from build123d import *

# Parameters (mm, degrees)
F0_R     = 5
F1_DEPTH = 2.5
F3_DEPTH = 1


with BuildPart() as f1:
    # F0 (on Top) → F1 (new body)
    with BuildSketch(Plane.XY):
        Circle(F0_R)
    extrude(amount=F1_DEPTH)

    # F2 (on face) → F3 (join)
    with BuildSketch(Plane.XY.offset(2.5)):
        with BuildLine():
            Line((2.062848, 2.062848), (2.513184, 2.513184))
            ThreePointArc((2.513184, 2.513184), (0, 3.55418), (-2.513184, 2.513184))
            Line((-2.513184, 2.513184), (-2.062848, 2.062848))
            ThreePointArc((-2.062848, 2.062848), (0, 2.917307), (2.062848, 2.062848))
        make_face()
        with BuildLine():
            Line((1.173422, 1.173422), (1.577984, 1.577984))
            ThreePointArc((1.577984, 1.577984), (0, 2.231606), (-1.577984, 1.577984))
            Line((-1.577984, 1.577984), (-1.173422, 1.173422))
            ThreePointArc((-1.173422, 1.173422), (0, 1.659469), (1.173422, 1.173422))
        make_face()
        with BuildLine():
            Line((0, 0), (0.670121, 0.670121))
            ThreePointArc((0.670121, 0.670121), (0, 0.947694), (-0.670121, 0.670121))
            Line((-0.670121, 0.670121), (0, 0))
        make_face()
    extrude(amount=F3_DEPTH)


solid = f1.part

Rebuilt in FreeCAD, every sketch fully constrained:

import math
import FreeCAD as App
import Part
import Sketcher

doc = App.newDocument("Part")
body = doc.addObject("PartDesign::Body", "Body")

# Sketch on XY plane
sketch1 = doc.addObject("Sketcher::SketchObject", "Sketch")
body.addObject(sketch1)
sketch1.AttachmentSupport = (doc.XY_Plane, [""])
sketch1.MapMode = "FlatFace"
sketch1.addGeometry(Part.Circle(App.Vector(0, 0, 0), App.Vector(0, 0, 1), 5), False)
sketch1.addConstraint([
    Sketcher.Constraint("Coincident", 0, 3, -1, 1),
    Sketcher.Constraint("Diameter", 0, 10.0),
])
pad1 = doc.addObject("PartDesign::Pad", "Pad")
body.addObject(pad1)
pad1.Profile = sketch1
pad1.Length = 2.5

# Sketch on XY plane
sketch2 = doc.addObject("Sketcher::SketchObject", "Sketch001")
body.addObject(sketch2)
sketch2.AttachmentSupport = (doc.XY_Plane, [""])
sketch2.MapMode = "FlatFace"
sketch2.AttachmentOffset = App.Placement(App.Vector(0, 0, 2.5), App.Rotation())
sketch2.addGeometry([
    Part.LineSegment(App.Vector(2.062848, 2.062848, 0), App.Vector(2.513184, 2.513184, 0)),  # 0
    Part.ArcOfCircle(Part.Circle(App.Vector(0, 0.000004, 0), App.Vector(0, 0, 1), 3.554176), math.radians(44.999957), math.radians(135.000043)),  # 1
    Part.LineSegment(App.Vector(-2.513184, 2.513184, 0), App.Vector(-2.062848, 2.062848, 0)),  # 2
    Part.ArcOfCircle(Part.Circle(App.Vector(0, -0.000002, 0), App.Vector(0, 0, 1), 2.917309), math.radians(45.000029), math.radians(134.999971)),  # 3
    Part.LineSegment(App.Vector(1.173422, 1.173422, 0), App.Vector(1.577984, 1.577984, 0)),  # 4
    Part.ArcOfCircle(Part.Circle(App.Vector(0, -0.000001, 0), App.Vector(0, 0, 1), 2.231607), math.radians(45.000023), math.radians(134.999977)),  # 5
    Part.LineSegment(App.Vector(-1.577984, 1.577984, 0), App.Vector(-1.173422, 1.173422, 0)),  # 6
    Part.ArcOfCircle(Part.Circle(App.Vector(0, -0.000001, 0), App.Vector(0, 0, 1), 1.65947), math.radians(45.000026), math.radians(134.999974)),  # 7
    Part.LineSegment(App.Vector(0, 0, 0), App.Vector(0.670121, 0.670121, 0)),  # 8
    Part.ArcOfCircle(Part.Circle(App.Vector(0, -0.000001, 0), App.Vector(0, 0, 1), 0.947695), math.radians(45.00003), math.radians(134.99997)),  # 9
    Part.LineSegment(App.Vector(-0.670121, 0.670121, 0), App.Vector(0, 0, 0)),  # 10
], False)
sketch2.addConstraint([
    Sketcher.Constraint("Coincident", 0, 2, 1, 1),
    Sketcher.Constraint("Coincident", 1, 2, 2, 1),
    Sketcher.Constraint("Coincident", 2, 2, 3, 2),
    Sketcher.Constraint("Coincident", 3, 1, 0, 1),
    Sketcher.Constraint("Coincident", 4, 2, 5, 1),
    Sketcher.Constraint("Coincident", 5, 2, 6, 1),
    Sketcher.Constraint("Coincident", 6, 2, 7, 2),
    Sketcher.Constraint("Coincident", 7, 1, 4, 1),
    Sketcher.Constraint("Coincident", 8, 2, 9, 1),
    Sketcher.Constraint("Coincident", 9, 2, 10, 1),
    Sketcher.Constraint("Coincident", 10, 2, 8, 1),
    Sketcher.Constraint("Coincident", 1, 3, -1, 1),
    Sketcher.Constraint("Coincident", 3, 3, -1, 1),
    Sketcher.Constraint("Coincident", 5, 3, -1, 1),
    Sketcher.Constraint("Coincident", 7, 3, -1, 1),
    Sketcher.Constraint("Coincident", 9, 3, -1, 1),
    Sketcher.Constraint("Coincident", 10, 2, -1, 1),
    Sketcher.Constraint("Perpendicular", 0, 2),
    Sketcher.Constraint("Perpendicular", 2, 4),
    Sketcher.Constraint("Perpendicular", 4, 6),
    Sketcher.Constraint("Perpendicular", 6, 8),
    Sketcher.Constraint("Perpendicular", 8, 10),
    Sketcher.Constraint("Horizontal", 0, 2, 1, 2),
    Sketcher.Constraint("Horizontal", 2, 2, 3, 1),
    Sketcher.Constraint("Horizontal", 4, 2, 5, 2),
    Sketcher.Constraint("Radius", 3, 2.917309),
    Sketcher.Constraint("Radius", 7, 1.65947),
    Sketcher.Constraint("Radius", 1, 3.554176),
    Sketcher.Constraint("Radius", 5, 2.231607),
    Sketcher.Constraint("Radius", 9, 0.947695),
    Sketcher.Constraint("DistanceX", 4, 2, 0, 2, 0.9352),
    Sketcher.Constraint("DistanceX", 8, 2, 7, 1, 0.503301),
])
pad2 = doc.addObject("PartDesign::Pad", "Pad001")
body.addObject(pad2)
pad2.Profile = sketch2
pad2.Length = 1

doc.recompute()
